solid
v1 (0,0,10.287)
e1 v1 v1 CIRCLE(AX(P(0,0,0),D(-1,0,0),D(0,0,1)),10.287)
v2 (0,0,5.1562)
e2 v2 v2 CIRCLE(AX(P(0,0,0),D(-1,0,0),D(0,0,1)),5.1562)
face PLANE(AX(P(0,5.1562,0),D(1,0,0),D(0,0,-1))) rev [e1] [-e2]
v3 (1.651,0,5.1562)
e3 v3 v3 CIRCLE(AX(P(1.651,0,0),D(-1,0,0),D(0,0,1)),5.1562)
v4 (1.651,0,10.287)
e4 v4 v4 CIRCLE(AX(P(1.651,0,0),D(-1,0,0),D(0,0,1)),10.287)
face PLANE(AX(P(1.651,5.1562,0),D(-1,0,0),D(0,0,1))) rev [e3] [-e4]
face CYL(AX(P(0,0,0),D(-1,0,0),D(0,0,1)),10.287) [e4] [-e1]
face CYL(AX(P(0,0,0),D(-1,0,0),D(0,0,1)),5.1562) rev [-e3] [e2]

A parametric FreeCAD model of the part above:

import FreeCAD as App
import Part
import Sketcher
Q = App.Units.Quantity


def add_polygon(sketch, points):
    """Adds a closed chain of lines whose ends are joined by coincident constraints."""
    first, n = sketch.GeometryCount, len(points)
    for a, b in zip(points, points[1:] + points[:1]):
        sketch.addGeometry(Part.LineSegment(App.Vector(*a, 0), App.Vector(*b, 0)), False)
    for i in range(n):
        sketch.addConstraint(Sketcher.Constraint("Coincident", first + i, 2, first + (i + 1) % n, 1))

doc = App.newDocument("Part")
params = doc.addObject("Spreadsheet::Sheet", "Params")
for row, (alias, value) in enumerate([
    ("sketch1_width", "0.065 in"),
    ("sketch1_height", "0.202 in"),
    ("revolution_angle", "360 deg"),
], start=1):
    params.set(f"A{row}", alias)
    params.set(f"B{row}", "=" + value)
    params.setAlias(f"B{row}", alias)

body = doc.addObject("PartDesign::Body", "Body")

# Sketch on XY plane
sketch1 = doc.addObject("Sketcher::SketchObject", "Sketch")
body.addObject(sketch1)
sketch1.AttachmentSupport = (doc.XY_Plane, [""])
sketch1.MapMode = "FlatFace"
add_polygon(sketch1, [(0, 10.3), (0, 5.2), (1.7, 5.2), (1.7, 10.3)])  # lines 0-3
sketch1.addConstraint(Sketcher.Constraint("Vertical", 0))
sketch1.addConstraint(Sketcher.Constraint("Horizontal", 1))
sketch1.addConstraint(Sketcher.Constraint("Vertical", 2))
sketch1.addConstraint(Sketcher.Constraint("Horizontal", 3))
sketch1.addConstraint(Sketcher.Constraint("PointOnObject", 0, 2, -2))
sketch1.addConstraint(Sketcher.Constraint("DistanceX", 1, 1, 1, 2, Q("0.065 in")))
sketch1.addConstraint(Sketcher.Constraint("DistanceY", 0, 2, 0, 1, Q("0.202 in")))
sketch1.addConstraint(Sketcher.Constraint("DistanceY", -1, 1, 0, 2, Q("0.203 in")))
sketch1.setExpression("Constraints[9]", "Params.sketch1_width")
sketch1.setExpression("Constraints[10]", "Params.sketch1_height")
revolution = doc.addObject("PartDesign::Revolution", "Revolution")
body.addObject(revolution)
revolution.Profile = sketch1
revolution.ReferenceAxis = (sketch1, ["H_Axis"])
revolution.setExpression("Angle", "Params.revolution_angle")

doc.recompute()
